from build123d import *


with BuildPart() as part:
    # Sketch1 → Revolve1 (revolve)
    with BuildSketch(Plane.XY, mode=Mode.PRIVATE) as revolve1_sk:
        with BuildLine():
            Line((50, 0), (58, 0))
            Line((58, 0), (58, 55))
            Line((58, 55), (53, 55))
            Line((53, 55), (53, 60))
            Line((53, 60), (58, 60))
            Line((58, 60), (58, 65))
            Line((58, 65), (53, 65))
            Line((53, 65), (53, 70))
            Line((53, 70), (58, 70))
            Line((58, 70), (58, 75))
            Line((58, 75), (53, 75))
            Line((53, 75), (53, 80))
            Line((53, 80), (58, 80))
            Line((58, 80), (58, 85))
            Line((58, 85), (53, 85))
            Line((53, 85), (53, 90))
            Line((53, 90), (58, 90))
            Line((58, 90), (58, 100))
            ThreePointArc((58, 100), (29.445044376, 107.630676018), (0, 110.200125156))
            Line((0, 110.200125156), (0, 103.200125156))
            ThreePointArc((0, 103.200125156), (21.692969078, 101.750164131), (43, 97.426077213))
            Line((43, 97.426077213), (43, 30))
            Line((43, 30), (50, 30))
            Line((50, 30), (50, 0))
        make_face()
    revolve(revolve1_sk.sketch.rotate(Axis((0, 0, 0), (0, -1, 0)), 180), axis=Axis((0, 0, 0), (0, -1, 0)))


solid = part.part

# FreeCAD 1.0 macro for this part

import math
import FreeCAD as App
import Part
import Sketcher

V = App.Vector

doc = App.newDocument("Part")
body = doc.addObject("PartDesign::Body", "Body")

sketch1 = doc.addObject("Sketcher::SketchObject", "Sketch")
body.addObject(sketch1)
sketch1.AttachmentSupport = (doc.XY_Plane, [""])
sketch1.MapMode = "FlatFace"
sketch1.addGeometry([
    Part.LineSegment(V(50, 0, 0), V(58, 0, 0)),
    Part.LineSegment(V(58, 0, 0), V(58, 55, 0)),
    Part.LineSegment(V(58, 55, 0), V(53, 55, 0)),
    Part.LineSegment(V(53, 55, 0), V(53, 60, 0)),
    Part.LineSegment(V(53, 60, 0), V(58, 60, 0)),
    Part.LineSegment(V(58, 60, 0), V(58, 65, 0)),
    Part.LineSegment(V(58, 65, 0), V(53, 65, 0)),
    Part.LineSegment(V(53, 65, 0), V(53, 70, 0)),
    Part.LineSegment(V(53, 70, 0), V(58, 70, 0)),
    Part.LineSegment(V(58, 70, 0), V(58, 75, 0)),
    Part.LineSegment(V(58, 75, 0), V(53, 75, 0)),
    Part.LineSegment(V(53, 75, 0), V(53, 80, 0)),
    Part.LineSegment(V(53, 80, 0), V(58, 80, 0)),
    Part.LineSegment(V(58, 80, 0), V(58, 85, 0)),
    Part.LineSegment(V(58, 85, 0), V(53, 85, 0)),
    Part.LineSegment(V(53, 85, 0), V(53, 90, 0)),
    Part.LineSegment(V(53, 90, 0), V(58, 90, 0)),
    Part.LineSegment(V(58, 90, 0), V(58, 100, 0)),
    Part.ArcOfCircle(Part.Circle(V(0, -60, 0), V(0, 0, 1), 170), math.radians(70.05), math.radians(90)),
    Part.LineSegment(V(0, 110, 0), V(0, 103, 0)),
    Part.ArcOfCircle(Part.Circle(V(0, -60, 0), V(0, 0, 1), 163), math.radians(74.7), math.radians(90)),
    Part.LineSegment(V(43, 97, 0), V(43, 30, 0)),
    Part.LineSegment(V(43, 30, 0), V(50, 30, 0)),
    Part.LineSegment(V(50, 30, 0), V(50, 0, 0)),
], False)
sketch1.addConstraint([
    Sketcher.Constraint("Coincident", 0, 2, 1, 1),
    Sketcher.Constraint("Coincident", 1, 2, 2, 1),
    Sketcher.Constraint("Coincident", 2, 2, 3, 1),
    Sketcher.Constraint("Coincident", 3, 2, 4, 1),
    Sketcher.Constraint("Coincident", 4, 2, 5, 1),
    Sketcher.Constraint("Coincident", 5, 2, 6, 1),
    Sketcher.Constraint("Coincident", 6, 2, 7, 1),
    Sketcher.Constraint("Coincident", 7, 2, 8, 1),
    Sketcher.Constraint("Coincident", 8, 2, 9, 1),
    Sketcher.Constraint("Coincident", 9, 2, 10, 1),
    Sketcher.Constraint("Coincident", 10, 2, 11, 1),
    Sketcher.Constraint("Coincident", 11, 2, 12, 1),
    Sketcher.Constraint("Coincident", 12, 2, 13, 1),
    Sketcher.Constraint("Coincident", 13, 2, 14, 1),
    Sketcher.Constraint("Coincident", 14, 2, 15, 1),
    Sketcher.Constraint("Coincident", 15, 2, 16, 1),
    Sketcher.Constraint("Coincident", 16, 2, 17, 1),
    Sketcher.Constraint("Coincident", 17, 2, 18, 1),
    Sketcher.Constraint("Coincident", 18, 2, 19, 1),
    Sketcher.Constraint("Coincident", 19, 2, 20, 2),
    Sketcher.Constraint("Coincident", 20, 1, 21, 1),
    Sketcher.Constraint("Coincident", 21, 2, 22, 1),
    Sketcher.Constraint("Coincident", 22, 2, 23, 1),
    Sketcher.Constraint("Coincident", 23, 2, 0, 1),
    Sketcher.Constraint("Horizontal", 0),
    Sketcher.Constraint("Vertical", 1),
    Sketcher.Constraint("Horizontal", 2),
    Sketcher.Constraint("Vertical", 3),
    Sketcher.Constraint("Horizontal", 4),
    Sketcher.Constraint("Vertical", 5),
    Sketcher.Constraint("Horizontal", 6),
    Sketcher.Constraint("Vertical", 7),
    Sketcher.Constraint("Horizontal", 8),
    Sketcher.Constraint("Vertical", 9),
    Sketcher.Constraint("Horizontal", 10),
    Sketcher.Constraint("Vertical", 11),
    Sketcher.Constraint("Horizontal", 12),
    Sketcher.Constraint("Vertical", 13),
    Sketcher.Constraint("Horizontal", 14),
    Sketcher.Constraint("Vertical", 15),
    Sketcher.Constraint("Horizontal", 16),
    Sketcher.Constraint("Vertical", 17),
    Sketcher.Constraint("Vertical", 19),
    Sketcher.Constraint("Vertical", 21),
    Sketcher.Constraint("Horizontal", 22),
    Sketcher.Constraint("Vertical", 23),
    Sketcher.Constraint("Coincident", 20, 3, 18, 3),
    Sketcher.Constraint("PointOnObject", 18, 3, -2),
    Sketcher.Constraint("PointOnObject", 0, 2, -1),
    Sketcher.Constraint("PointOnObject", 18, 2, -2),
    Sketcher.Constraint("Vertical", 1, 2, 4, 2),
    Sketcher.Constraint("Vertical", 3, 2, 6, 2),
    Sketcher.Constraint("Vertical", 5, 2, 8, 2),
    Sketcher.Constraint("Vertical", 7, 2, 10, 2),
    Sketcher.Constraint("Vertical", 9, 2, 12, 2),
    Sketcher.Constraint("Vertical", 11, 2, 14, 2),
    Sketcher.Constraint("Vertical", 13, 2, 16, 2),
    Sketcher.Constraint("Equal", 16, 3),
    Sketcher.Constraint("Equal", 3, 5),
    Sketcher.Constraint("Equal", 5, 7),
    Sketcher.Constraint("Equal", 7, 9),
    Sketcher.Constraint("Equal", 9, 11),
    Sketcher.Constraint("Equal", 11, 13),
    Sketcher.Constraint("Equal", 13, 15),
    Sketcher.Constraint("Equal", 22, 19),
    Sketcher.Constraint("Radius", 18, 170.0),
    Sketcher.Constraint("Radius", 20, 163.0),
    Sketcher.Constraint("DistanceX", 0, 1, 0, 2, 8.0),
    Sketcher.Constraint("DistanceX", 2, 2, 2, 1, 5.0),
    Sketcher.Constraint("DistanceY", 1, 1, 1, 2, 55.0),
    Sketcher.Constraint("DistanceY", 17, 1, 17, 2, 10.0),
    Sketcher.Constraint("DistanceY", 23, 2, 23, 1, 30.0),
    Sketcher.Constraint("DistanceX", -1, 1, 0, 2, 58.0),
])
revolution = doc.addObject("PartDesign::Revolution", "Revolution")
body.addObject(revolution)
revolution.Profile = sketch1
revolution.ReferenceAxis = (sketch1, ["V_Axis"])
revolution.Angle = 360

doc.recompute()
